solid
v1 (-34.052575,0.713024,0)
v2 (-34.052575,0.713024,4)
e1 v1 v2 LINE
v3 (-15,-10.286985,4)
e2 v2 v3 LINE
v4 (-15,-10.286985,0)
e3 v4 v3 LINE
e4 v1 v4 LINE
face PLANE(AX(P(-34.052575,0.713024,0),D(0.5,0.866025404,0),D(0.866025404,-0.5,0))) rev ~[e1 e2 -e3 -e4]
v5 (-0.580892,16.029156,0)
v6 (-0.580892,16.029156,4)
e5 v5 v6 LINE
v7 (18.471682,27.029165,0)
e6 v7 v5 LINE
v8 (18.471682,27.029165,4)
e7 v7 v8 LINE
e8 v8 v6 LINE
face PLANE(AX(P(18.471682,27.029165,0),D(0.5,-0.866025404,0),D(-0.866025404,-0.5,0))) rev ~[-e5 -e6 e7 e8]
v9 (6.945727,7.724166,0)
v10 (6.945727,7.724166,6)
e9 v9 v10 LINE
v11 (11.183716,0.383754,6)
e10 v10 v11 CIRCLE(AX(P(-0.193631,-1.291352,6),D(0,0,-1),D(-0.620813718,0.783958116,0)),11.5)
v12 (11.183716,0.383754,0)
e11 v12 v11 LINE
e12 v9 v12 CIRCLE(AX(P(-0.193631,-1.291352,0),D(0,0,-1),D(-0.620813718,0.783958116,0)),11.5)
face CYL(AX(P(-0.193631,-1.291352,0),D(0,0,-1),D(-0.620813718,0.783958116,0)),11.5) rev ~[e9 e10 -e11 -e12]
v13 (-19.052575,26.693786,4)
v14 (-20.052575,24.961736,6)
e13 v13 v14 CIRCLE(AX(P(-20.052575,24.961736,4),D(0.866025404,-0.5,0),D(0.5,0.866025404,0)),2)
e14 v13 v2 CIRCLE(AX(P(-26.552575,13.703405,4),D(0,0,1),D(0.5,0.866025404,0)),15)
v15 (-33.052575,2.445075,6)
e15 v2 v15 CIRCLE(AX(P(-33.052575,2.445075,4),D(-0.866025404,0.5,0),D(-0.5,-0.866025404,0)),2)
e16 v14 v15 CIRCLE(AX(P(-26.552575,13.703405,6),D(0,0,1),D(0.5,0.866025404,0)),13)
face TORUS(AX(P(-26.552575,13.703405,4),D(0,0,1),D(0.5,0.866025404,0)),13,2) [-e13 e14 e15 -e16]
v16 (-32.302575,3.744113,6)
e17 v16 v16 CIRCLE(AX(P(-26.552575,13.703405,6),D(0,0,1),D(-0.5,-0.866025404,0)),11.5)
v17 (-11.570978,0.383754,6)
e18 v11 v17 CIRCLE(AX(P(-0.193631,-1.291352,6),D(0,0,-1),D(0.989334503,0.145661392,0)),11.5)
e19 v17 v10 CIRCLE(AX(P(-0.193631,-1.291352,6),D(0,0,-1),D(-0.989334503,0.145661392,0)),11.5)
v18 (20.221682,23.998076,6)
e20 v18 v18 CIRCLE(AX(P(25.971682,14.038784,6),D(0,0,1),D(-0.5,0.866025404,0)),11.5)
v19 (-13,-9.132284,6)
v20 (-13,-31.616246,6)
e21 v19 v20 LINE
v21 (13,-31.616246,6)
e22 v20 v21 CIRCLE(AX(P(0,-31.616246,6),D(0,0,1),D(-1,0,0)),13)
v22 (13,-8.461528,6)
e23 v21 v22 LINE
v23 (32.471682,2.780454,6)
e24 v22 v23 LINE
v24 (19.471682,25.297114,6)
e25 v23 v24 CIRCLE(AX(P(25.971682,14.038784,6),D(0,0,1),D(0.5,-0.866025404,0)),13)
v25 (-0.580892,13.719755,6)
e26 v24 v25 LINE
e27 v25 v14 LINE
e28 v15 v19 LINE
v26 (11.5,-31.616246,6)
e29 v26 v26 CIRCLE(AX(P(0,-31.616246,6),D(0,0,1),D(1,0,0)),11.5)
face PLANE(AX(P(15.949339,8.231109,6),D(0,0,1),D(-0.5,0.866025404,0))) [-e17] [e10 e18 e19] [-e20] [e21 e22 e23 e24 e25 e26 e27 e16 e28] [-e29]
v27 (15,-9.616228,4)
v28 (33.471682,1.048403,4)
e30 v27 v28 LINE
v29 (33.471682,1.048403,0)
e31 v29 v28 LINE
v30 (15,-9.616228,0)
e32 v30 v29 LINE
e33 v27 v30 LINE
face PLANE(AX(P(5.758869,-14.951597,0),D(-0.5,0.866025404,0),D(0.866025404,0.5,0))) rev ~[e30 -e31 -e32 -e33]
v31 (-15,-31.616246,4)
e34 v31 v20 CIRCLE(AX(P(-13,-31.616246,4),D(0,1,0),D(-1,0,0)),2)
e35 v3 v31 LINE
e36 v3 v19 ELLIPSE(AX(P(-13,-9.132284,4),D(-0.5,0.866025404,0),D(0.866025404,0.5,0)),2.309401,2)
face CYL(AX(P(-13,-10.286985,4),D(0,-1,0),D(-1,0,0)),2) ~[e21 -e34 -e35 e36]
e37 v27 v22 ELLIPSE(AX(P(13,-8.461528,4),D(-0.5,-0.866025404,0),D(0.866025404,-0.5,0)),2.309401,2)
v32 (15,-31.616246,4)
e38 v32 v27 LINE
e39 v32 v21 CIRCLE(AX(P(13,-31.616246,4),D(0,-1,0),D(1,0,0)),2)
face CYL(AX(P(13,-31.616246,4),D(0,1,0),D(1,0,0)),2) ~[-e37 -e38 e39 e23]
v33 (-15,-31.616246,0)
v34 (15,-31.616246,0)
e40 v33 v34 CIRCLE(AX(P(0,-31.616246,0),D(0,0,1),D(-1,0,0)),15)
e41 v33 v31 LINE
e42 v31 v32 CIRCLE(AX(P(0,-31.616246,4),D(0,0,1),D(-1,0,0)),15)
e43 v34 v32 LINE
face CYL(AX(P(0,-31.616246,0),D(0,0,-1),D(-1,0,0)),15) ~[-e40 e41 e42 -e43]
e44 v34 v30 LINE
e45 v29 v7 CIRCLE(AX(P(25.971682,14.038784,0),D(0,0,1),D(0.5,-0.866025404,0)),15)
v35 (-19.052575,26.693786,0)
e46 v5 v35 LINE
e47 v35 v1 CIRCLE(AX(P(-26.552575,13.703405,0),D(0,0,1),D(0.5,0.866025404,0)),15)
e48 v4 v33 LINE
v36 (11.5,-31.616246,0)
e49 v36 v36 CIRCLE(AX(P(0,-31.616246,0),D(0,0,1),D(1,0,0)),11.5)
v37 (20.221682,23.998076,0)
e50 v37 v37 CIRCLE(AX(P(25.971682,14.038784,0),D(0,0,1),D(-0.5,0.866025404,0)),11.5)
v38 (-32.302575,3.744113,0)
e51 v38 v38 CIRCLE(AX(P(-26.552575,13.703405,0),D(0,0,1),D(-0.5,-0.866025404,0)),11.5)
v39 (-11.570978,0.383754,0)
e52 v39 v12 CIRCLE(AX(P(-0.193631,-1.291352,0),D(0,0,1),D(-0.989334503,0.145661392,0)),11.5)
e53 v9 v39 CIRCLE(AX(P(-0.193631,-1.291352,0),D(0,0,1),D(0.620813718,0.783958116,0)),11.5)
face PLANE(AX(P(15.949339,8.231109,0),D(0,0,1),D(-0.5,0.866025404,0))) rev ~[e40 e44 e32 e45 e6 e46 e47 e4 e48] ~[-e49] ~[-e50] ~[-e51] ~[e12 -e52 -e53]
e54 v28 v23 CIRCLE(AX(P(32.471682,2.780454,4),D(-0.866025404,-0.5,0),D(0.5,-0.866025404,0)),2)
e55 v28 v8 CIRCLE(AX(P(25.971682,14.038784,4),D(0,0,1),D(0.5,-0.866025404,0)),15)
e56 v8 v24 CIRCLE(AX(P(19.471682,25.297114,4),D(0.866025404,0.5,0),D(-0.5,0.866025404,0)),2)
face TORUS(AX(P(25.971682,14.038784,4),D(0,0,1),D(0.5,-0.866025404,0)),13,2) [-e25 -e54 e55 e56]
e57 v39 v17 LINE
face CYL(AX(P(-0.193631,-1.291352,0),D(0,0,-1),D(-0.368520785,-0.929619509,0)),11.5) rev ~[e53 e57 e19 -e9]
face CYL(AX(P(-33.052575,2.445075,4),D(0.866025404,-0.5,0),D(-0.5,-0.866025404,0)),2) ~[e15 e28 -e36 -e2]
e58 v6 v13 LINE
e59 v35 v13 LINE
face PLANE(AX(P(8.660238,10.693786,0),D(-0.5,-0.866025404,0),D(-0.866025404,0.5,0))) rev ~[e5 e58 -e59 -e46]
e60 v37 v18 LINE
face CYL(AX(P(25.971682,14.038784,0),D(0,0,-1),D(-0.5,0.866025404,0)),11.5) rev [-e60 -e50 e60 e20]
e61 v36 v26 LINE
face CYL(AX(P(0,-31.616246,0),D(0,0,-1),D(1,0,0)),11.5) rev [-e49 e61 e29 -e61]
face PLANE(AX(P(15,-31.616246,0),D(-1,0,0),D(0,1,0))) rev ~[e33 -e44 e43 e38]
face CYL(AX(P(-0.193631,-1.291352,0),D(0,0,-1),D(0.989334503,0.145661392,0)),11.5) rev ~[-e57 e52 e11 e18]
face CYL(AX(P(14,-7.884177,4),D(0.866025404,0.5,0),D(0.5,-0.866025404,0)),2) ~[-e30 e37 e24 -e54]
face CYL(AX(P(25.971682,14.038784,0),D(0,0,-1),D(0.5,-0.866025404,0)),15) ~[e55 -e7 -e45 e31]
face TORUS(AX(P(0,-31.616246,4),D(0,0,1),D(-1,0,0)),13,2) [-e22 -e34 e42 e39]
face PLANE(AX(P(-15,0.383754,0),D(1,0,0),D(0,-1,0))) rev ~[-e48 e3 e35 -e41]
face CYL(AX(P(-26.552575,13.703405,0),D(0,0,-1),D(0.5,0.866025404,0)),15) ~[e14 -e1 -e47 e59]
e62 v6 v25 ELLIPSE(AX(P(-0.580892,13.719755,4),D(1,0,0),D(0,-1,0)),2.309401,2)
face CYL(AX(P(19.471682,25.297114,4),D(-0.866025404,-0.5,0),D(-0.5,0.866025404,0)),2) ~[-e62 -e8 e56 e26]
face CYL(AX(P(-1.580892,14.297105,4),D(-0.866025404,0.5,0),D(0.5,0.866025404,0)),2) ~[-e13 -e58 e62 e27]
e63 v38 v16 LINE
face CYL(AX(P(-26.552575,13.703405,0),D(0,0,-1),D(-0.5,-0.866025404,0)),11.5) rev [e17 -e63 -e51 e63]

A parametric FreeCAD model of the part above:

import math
import FreeCAD as App
import Part
import Sketcher
from FreeCAD import Vector
Q = App.Units.Quantity


def edges_at(feature, points):
    """Names of the edges that pass closest to the given points."""
    edges = feature.Shape.Edges
    near = lambda p: min(range(len(edges)), key=lambda i: edges[i].distToShape(Part.Vertex(*p))[0])
    return sorted({f"Edge{near(p) + 1}" for p in points})

doc = App.newDocument("Part")
body = doc.addObject("PartDesign::Body", "Body")

# Sketch on XY plane
sketch1 = body.newObject("Sketcher::SketchObject", "Sketch")
sketch1.AttachmentSupport = (doc.getObject("XY_Plane"), [""])
sketch1.MapMode = "FlatFace"
sketch1.addGeometry([
    Part.LineSegment(Vector(15, -31.616246, 0), Vector(15, 0.383754, 0)),  # 0
    Part.LineSegment(Vector(15, 0.383754, 0), Vector(11.183716, 0.383754, 0)),  # 1
    Part.ArcOfCircle(Part.Circle(Vector(-0.193631, -1.291352, 0), Vector(0, 0, 1), 11.5), math.radians(171.624419), math.radians(368.375581)),  # 2
    Part.LineSegment(Vector(-11.570978, 0.383754, 0), Vector(-15, 0.383754, 0)),  # 3
    Part.LineSegment(Vector(-15, 0.383754, 0), Vector(-15, -31.616246, 0)),  # 4
    Part.ArcOfCircle(Part.Circle(Vector(0, -31.616246, 0), Vector(0, 0, 1), 15), math.radians(180), math.radians(360)),  # 5
    Part.Circle(Vector(0, -31.616246, 0), Vector(0, 0, 1), 11.5),  # 6
], False)
sketch1.addConstraint([
    Sketcher.Constraint("Coincident", 0, 2, 1, 1),
    Sketcher.Constraint("Coincident", 1, 2, 2, 2),
    Sketcher.Constraint("Coincident", 2, 1, 3, 1),
    Sketcher.Constraint("Coincident", 3, 2, 4, 1),
    Sketcher.Constraint("Tangent", 4, 2, 5, 1),
    Sketcher.Constraint("Tangent", 5, 2, 0, 1),
    Sketcher.Constraint("Vertical", 0),
    Sketcher.Constraint("Horizontal", 1),
    Sketcher.Constraint("Horizontal", 3),
    Sketcher.Constraint("Vertical", 4),
    Sketcher.Constraint("Coincident", 6, 3, 5, 3),
    Sketcher.Constraint("Equal", 2, 6),
    Sketcher.Constraint("Symmetric", 0, 2, 3, 2, -2),
    Sketcher.Constraint("Diameter", 6, Q("23 mm")),
    Sketcher.Constraint("Radius", 5, Q("15 mm")),
    Sketcher.Constraint("DistanceY", 0, 1, 0, 2, Q("32 mm")),
    Sketcher.Constraint("DistanceX", 1, 2, 1, 1, Q("3.816284 mm")),
    Sketcher.Constraint("DistanceX", 3, 2, 3, 1, Q("3.429022 mm")),
    Sketcher.Constraint("DistanceY", 2, 3, -1, 1, Q("1.291352 mm")),
])
pad1 = body.newObject("PartDesign::Pad", "Pad")
pad1.Profile = sketch1
pad1.Length = 6
body2 = doc.addObject("PartDesign::Body", "Body001")
doc.recompute()

body2.BaseFeature = body
doc.recompute()

body3 = doc.addObject("PartDesign::Body", "Body002")
body3.BaseFeature = body
body3.Placement = App.Placement(Vector(0.827898, -2.104718, 0), App.Rotation(Vector(0, 0, -1), 120))
boolean = body2.newObject("PartDesign::Boolean", "Boolean")
boolean.Type = "Fuse"
boolean.addObjects([body3])
doc.recompute()

body.Placement = App.Placement(Vector(-1.40879, -1.769339, 0), App.Rotation(Vector(0, 0, -1), 240))
boolean2 = body2.newObject("PartDesign::Boolean", "Boolean001")
boolean2.Type = "Fuse"
boolean2.addObjects([body])
doc.recompute()

fillet = body2.newObject("PartDesign::Fillet", "Fillet")
fillet.Base = (boolean2, edges_at(boolean2, [(8.945, 21.529, 6), (-24.526, -4.787, 6), (15, -20.616, 6)]))
fillet.Radius = 2

doc.recompute()
